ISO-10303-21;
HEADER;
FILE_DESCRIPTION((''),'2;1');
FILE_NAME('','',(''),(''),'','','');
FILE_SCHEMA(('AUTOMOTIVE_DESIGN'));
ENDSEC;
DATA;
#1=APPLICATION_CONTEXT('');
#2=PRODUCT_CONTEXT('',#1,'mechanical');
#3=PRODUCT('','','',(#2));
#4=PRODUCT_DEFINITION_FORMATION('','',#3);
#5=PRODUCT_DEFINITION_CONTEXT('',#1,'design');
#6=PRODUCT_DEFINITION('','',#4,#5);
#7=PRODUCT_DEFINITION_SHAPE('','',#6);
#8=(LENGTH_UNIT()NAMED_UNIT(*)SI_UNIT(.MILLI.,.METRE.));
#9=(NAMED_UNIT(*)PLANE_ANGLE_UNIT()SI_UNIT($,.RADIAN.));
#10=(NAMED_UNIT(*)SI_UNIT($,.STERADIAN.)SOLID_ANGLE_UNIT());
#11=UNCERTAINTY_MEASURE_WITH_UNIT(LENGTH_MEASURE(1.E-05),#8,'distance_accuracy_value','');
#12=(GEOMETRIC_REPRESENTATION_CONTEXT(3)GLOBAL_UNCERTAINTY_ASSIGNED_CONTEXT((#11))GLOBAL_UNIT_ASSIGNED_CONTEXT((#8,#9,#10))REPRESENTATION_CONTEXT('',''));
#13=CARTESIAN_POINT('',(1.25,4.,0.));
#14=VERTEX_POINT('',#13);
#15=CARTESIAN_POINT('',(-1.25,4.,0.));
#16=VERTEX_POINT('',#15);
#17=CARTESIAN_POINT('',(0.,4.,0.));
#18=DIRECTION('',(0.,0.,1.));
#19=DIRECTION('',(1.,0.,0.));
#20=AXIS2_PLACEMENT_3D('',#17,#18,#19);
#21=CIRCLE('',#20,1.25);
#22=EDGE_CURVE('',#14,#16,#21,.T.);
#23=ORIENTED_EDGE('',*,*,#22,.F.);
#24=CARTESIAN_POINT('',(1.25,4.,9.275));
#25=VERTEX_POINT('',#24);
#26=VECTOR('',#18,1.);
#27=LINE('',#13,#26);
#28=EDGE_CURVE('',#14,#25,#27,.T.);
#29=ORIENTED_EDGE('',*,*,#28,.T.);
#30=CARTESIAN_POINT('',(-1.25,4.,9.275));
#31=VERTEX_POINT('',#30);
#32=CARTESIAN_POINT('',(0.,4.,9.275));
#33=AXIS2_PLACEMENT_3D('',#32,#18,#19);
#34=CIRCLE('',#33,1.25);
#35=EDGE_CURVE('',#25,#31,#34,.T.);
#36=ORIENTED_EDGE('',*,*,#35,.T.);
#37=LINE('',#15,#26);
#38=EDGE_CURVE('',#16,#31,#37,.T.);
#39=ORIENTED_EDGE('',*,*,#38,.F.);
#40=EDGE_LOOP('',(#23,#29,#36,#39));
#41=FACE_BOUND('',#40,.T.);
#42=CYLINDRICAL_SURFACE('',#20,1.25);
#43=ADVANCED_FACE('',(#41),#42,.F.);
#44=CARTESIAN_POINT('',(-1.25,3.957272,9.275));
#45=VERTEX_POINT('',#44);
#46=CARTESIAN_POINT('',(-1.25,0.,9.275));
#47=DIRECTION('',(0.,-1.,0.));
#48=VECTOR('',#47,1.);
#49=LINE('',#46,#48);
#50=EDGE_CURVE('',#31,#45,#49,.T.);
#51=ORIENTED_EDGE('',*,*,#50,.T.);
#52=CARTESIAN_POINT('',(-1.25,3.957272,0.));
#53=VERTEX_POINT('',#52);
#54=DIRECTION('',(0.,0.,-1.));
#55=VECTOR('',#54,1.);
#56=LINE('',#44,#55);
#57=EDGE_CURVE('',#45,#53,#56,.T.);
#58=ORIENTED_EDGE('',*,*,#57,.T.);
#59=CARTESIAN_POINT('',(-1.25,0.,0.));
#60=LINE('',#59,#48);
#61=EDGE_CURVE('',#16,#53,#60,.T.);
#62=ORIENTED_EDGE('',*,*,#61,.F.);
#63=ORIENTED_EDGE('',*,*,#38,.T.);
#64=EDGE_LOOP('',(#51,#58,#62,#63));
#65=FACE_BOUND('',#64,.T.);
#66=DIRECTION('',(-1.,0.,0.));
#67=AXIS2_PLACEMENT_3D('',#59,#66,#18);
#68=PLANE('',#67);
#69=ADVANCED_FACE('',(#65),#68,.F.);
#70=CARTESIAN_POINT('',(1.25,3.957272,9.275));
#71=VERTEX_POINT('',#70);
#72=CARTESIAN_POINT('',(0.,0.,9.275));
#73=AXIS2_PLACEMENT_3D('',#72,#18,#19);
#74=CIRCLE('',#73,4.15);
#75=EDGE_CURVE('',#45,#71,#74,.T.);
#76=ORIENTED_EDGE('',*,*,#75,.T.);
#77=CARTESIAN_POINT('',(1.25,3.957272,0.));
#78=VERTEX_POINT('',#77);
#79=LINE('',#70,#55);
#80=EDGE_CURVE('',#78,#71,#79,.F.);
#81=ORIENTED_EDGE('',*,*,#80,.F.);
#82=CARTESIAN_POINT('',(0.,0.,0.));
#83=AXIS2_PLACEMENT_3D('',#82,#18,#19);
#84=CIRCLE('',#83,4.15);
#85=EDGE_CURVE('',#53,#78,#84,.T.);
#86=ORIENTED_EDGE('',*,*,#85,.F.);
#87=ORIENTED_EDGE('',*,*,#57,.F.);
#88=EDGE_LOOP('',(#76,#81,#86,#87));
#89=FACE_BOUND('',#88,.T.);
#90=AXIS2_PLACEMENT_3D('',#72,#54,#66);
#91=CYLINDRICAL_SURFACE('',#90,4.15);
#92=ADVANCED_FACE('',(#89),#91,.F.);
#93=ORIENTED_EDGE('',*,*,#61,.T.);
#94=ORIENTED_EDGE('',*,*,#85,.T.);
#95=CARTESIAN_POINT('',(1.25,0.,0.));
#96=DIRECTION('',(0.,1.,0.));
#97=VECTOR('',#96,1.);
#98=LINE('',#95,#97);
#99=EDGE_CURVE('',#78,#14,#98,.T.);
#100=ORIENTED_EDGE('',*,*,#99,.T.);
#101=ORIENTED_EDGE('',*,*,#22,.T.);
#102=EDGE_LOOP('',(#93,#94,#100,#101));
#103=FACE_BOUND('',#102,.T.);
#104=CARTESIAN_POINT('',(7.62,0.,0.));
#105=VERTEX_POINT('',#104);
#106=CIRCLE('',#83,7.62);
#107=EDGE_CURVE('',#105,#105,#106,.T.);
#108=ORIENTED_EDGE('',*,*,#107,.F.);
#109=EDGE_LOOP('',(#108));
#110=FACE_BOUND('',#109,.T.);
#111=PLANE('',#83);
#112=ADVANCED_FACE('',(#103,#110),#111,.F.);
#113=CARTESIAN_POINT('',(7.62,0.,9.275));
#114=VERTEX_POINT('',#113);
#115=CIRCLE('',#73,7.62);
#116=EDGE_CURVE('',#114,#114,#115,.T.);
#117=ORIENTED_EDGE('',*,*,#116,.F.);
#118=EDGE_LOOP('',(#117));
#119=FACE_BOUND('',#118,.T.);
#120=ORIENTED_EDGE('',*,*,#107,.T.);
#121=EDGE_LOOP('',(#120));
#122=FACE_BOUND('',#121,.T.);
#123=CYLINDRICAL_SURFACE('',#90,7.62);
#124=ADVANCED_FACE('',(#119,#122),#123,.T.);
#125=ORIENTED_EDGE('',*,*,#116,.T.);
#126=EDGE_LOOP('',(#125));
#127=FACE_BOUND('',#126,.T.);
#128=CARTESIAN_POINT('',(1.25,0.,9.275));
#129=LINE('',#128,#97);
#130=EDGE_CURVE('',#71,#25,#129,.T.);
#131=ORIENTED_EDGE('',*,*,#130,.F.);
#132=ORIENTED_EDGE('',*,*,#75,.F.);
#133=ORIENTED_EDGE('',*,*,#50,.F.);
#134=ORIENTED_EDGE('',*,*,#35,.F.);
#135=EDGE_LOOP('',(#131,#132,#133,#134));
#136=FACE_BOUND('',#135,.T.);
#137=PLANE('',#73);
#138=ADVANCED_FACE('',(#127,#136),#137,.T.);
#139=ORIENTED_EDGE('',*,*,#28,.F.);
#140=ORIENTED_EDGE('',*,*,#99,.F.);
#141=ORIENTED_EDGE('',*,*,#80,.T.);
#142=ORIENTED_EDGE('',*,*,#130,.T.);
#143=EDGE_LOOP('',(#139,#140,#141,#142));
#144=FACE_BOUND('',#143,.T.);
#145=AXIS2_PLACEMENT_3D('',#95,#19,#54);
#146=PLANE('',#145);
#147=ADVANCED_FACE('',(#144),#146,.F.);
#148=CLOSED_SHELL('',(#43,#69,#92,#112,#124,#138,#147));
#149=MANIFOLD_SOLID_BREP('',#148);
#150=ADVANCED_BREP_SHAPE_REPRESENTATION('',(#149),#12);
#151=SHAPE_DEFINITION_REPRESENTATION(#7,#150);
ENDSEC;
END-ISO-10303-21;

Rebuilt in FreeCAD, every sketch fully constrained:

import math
import FreeCAD as App
import Part
import Sketcher

V = App.Vector
Q = App.Units.Quantity

doc = App.newDocument("Part")
body = doc.addObject("PartDesign::Body", "Body")

sketch1 = body.newObject("Sketcher::SketchObject", "Sketch")
sketch1.AttachmentSupport = (doc.getObject("XY_Plane"), [""])
sketch1.MapMode = "FlatFace"
sketch1.addGeometry(Part.Circle(V(0, 0, 0), V(0, 0, 1), 7.6), False)
sketch1.addGeometry(Part.Circle(V(0, 0, 0), V(0, 0, 1), 4.2), False)
sketch1.addConstraint(Sketcher.Constraint("Coincident", 0, 3, -1, 1))
sketch1.addConstraint(Sketcher.Constraint("Coincident", 1, 3, -1, 1))
sketch1.addConstraint(Sketcher.Constraint("Diameter", 1, Q("8.3 mm")))
sketch1.addConstraint(Sketcher.Constraint("Diameter", 0, Q("15.24 mm")))
pad1 = body.newObject("PartDesign::Pad", "Pad")
pad1.Profile = sketch1
pad1.Length = 9.275

sketch2 = body.newObject("Sketcher::SketchObject", "Sketch001")
sketch2.AttachmentSupport = (doc.getObject("XY_Plane"), [""])
sketch2.MapMode = "FlatFace"
sketch2.AttachmentOffset = App.Placement(V(0, 0, 9.275), App.Rotation())
sketch2.addGeometry(Part.LineSegment(V(-1.2, 4, 0), V(-1.2, 0, 0)), False)
sketch2.addGeometry(Part.ArcOfCircle(Part.Circle(V(0, 0, 0), V(0, 0, 1), 1.2), math.radians(180), math.radians(360)), False)
sketch2.addGeometry(Part.LineSegment(V(1.2, 0, 0), V(1.2, 4, 0)), False)
sketch2.addGeometry(Part.ArcOfCircle(Part.Circle(V(0, 4, 0), V(0, 0, 1), 1.2), math.radians(0), math.radians(180)), False)
sketch2.addConstraint(Sketcher.Constraint("Tangent", 0, 2, 1, 1))
sketch2.addConstraint(Sketcher.Constraint("Tangent", 1, 2, 2, 1))
sketch2.addConstraint(Sketcher.Constraint("Tangent", 2, 2, 3, 1))
sketch2.addConstraint(Sketcher.Constraint("Tangent", 3, 2, 0, 1))
sketch2.addConstraint(Sketcher.Constraint("Vertical", 0))
sketch2.addConstraint(Sketcher.Constraint("Vertical", 2))
sketch2.addConstraint(Sketcher.Constraint("Coincident", 1, 3, -1, 1))
sketch2.addConstraint(Sketcher.Constraint("DistanceY", 0, 2, 0, 1, Q("4 mm")))
sketch2.addConstraint(Sketcher.Constraint("Radius", 1, Q("1.25 mm")))
pocket1 = body.newObject("PartDesign::Pocket", "Pocket")
pocket1.Profile = sketch2
pocket1.Type = "ThroughAll"

doc.recompute()
